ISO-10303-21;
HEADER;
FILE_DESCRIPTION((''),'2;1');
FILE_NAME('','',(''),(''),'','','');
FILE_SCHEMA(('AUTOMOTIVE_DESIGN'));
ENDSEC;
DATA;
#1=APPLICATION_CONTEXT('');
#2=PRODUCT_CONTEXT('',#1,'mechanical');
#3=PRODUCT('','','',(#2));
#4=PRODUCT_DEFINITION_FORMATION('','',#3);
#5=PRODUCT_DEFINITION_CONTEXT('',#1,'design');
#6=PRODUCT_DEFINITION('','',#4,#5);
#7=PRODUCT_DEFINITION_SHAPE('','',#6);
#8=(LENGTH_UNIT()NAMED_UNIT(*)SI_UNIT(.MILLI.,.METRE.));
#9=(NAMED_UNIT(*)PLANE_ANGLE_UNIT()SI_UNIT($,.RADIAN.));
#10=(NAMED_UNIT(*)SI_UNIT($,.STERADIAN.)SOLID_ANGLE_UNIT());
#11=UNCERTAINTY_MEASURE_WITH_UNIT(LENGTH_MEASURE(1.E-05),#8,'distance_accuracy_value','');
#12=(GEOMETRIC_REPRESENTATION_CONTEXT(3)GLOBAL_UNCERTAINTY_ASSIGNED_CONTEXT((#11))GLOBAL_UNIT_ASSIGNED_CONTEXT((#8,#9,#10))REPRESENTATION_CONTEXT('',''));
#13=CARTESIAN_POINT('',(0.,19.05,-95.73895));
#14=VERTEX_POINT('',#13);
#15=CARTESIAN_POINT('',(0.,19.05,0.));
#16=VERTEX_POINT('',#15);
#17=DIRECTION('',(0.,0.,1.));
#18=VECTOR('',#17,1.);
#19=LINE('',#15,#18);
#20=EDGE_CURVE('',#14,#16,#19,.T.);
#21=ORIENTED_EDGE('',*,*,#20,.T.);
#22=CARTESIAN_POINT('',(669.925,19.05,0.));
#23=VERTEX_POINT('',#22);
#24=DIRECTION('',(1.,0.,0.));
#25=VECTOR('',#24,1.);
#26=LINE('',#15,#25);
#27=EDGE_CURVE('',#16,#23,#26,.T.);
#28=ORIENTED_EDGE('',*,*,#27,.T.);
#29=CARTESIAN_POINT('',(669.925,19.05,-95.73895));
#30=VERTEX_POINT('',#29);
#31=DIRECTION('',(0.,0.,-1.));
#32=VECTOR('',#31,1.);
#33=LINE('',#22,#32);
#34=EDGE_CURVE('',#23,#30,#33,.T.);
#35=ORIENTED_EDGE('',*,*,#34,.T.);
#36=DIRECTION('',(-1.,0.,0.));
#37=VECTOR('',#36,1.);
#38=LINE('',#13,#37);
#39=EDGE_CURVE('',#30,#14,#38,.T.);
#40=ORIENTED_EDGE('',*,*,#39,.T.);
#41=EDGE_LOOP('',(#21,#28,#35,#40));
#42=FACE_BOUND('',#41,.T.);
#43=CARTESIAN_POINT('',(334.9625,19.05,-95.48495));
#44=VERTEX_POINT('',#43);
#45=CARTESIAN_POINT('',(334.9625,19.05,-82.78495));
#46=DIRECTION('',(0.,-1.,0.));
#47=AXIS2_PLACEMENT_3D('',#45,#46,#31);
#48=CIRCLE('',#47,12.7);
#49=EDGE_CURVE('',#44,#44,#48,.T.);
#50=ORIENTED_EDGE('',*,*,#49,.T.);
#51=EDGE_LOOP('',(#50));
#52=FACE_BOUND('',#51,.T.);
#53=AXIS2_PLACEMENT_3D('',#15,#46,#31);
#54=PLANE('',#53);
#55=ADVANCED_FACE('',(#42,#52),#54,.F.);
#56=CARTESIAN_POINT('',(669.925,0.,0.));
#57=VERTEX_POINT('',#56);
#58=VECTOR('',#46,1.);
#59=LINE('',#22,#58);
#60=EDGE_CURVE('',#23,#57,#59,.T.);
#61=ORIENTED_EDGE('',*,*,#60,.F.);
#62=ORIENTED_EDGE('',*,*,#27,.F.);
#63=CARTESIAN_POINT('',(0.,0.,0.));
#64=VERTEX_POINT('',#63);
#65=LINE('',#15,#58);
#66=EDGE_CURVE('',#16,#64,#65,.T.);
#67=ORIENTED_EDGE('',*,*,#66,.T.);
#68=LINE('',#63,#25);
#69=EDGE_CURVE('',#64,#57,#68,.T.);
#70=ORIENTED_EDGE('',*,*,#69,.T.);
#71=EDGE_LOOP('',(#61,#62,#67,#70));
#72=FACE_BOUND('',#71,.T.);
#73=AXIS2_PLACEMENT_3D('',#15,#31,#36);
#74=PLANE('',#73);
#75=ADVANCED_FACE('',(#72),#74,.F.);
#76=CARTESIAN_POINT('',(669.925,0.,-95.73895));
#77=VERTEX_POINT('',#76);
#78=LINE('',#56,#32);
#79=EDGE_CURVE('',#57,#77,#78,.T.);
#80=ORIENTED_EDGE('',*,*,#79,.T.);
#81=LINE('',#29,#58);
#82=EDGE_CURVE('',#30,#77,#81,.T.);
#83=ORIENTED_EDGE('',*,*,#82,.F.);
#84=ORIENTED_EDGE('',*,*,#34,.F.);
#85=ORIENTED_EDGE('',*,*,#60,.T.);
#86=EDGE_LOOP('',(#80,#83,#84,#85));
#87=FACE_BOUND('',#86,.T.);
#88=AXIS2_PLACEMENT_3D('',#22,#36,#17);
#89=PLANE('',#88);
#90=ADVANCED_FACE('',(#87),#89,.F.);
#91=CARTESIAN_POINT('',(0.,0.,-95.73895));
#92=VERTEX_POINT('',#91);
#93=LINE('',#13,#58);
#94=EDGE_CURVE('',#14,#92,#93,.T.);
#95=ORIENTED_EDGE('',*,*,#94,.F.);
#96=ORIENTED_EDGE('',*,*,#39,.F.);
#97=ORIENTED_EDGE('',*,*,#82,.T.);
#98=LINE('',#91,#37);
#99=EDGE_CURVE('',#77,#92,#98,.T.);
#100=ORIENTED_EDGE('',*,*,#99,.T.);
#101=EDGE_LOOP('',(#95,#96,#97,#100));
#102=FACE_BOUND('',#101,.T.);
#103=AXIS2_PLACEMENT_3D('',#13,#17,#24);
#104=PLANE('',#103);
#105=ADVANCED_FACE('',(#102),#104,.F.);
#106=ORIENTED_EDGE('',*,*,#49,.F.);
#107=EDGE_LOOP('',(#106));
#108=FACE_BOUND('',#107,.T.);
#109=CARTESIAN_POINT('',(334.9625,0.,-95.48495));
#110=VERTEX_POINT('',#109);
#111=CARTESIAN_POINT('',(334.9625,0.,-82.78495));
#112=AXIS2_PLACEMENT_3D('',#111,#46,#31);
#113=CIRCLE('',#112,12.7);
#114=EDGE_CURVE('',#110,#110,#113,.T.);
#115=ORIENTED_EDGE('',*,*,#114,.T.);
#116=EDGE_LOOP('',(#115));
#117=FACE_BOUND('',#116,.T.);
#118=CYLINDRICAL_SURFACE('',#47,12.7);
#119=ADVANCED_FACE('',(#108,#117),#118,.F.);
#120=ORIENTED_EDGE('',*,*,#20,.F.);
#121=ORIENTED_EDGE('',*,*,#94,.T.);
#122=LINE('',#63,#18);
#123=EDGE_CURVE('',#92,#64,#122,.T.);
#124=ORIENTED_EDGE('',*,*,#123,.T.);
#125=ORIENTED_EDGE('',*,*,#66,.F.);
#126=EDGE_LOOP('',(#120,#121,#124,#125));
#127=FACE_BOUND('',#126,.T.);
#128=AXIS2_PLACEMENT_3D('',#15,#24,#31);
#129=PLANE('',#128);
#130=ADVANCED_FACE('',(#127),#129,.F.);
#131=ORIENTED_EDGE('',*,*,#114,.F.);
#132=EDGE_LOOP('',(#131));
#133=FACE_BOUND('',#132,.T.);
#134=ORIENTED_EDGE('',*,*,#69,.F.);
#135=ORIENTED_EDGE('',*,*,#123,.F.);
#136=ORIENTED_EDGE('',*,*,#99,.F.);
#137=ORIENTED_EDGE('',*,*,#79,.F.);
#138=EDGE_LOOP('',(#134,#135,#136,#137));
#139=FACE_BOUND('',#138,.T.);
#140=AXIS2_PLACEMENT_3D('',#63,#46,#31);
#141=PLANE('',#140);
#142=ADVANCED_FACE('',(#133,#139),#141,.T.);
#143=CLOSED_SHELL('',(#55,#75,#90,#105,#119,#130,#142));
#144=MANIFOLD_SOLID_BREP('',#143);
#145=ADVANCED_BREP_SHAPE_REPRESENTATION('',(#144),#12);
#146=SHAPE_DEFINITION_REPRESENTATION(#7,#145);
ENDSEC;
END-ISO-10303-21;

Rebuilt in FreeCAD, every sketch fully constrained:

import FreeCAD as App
import Part
import Sketcher
Q = App.Units.Quantity

doc = App.newDocument("Part")
body = doc.addObject("PartDesign::Body", "Body")

sketch1 = body.newObject("Sketcher::SketchObject", "Sketch")
sketch1.AttachmentSupport = (doc.getObject("XZ_Plane"), [""])
sketch1.MapMode = "FlatFace"
sketch1.addGeometry([
    Part.LineSegment(App.Vector(0, -96, 0), App.Vector(0, 0, 0)),
    Part.LineSegment(App.Vector(0, 0, 0), App.Vector(670, 0, 0)),
    Part.LineSegment(App.Vector(670, 0, 0), App.Vector(670, -96, 0)),
    Part.LineSegment(App.Vector(670, -96, 0), App.Vector(0, -96, 0)),
], False)
sketch1.addConstraint([
    Sketcher.Constraint("Coincident", 0, 2, 1, 1),
    Sketcher.Constraint("Coincident", 1, 2, 2, 1),
    Sketcher.Constraint("Coincident", 2, 2, 3, 1),
    Sketcher.Constraint("Coincident", 3, 2, 0, 1),
    Sketcher.Constraint("Vertical", 0),
    Sketcher.Constraint("Horizontal", 1),
    Sketcher.Constraint("Vertical", 2),
    Sketcher.Constraint("Horizontal", 3),
    Sketcher.Constraint("Coincident", 0, 2, -1, 1),
    Sketcher.Constraint("DistanceX", 1, 1, 1, 2, Q("26.375 in")),
    Sketcher.Constraint("DistanceY", 0, 1, 0, 2, Q("95.73895 mm")),
])
pad1 = body.newObject("PartDesign::Pad", "Pad")
pad1.Profile = sketch1
pad1.Length = Q("0.75 in")
pad1.Reversed = True

sketch2 = body.newObject("Sketcher::SketchObject", "Sketch001")
sketch2.AttachmentSupport = (doc.getObject("XZ_Plane"), [""])
sketch2.MapMode = "FlatFace"
sketch2.addGeometry(Part.Circle(App.Vector(335, -83, 0), App.Vector(0, 0, 1), 13), False)
sketch2.addConstraint([
    Sketcher.Constraint("Diameter", 0, Q("1 in")),
    Sketcher.Constraint("DistanceX", -1, 1, 0, 3, Q("13.1875 in")),
    Sketcher.Constraint("DistanceY", 0, 3, -1, 1, Q("82.78495 mm")),
])
pocket1 = body.newObject("PartDesign::Pocket", "Pocket")
pocket1.Profile = sketch2
pocket1.Type = "ThroughAll"

doc.recompute()
